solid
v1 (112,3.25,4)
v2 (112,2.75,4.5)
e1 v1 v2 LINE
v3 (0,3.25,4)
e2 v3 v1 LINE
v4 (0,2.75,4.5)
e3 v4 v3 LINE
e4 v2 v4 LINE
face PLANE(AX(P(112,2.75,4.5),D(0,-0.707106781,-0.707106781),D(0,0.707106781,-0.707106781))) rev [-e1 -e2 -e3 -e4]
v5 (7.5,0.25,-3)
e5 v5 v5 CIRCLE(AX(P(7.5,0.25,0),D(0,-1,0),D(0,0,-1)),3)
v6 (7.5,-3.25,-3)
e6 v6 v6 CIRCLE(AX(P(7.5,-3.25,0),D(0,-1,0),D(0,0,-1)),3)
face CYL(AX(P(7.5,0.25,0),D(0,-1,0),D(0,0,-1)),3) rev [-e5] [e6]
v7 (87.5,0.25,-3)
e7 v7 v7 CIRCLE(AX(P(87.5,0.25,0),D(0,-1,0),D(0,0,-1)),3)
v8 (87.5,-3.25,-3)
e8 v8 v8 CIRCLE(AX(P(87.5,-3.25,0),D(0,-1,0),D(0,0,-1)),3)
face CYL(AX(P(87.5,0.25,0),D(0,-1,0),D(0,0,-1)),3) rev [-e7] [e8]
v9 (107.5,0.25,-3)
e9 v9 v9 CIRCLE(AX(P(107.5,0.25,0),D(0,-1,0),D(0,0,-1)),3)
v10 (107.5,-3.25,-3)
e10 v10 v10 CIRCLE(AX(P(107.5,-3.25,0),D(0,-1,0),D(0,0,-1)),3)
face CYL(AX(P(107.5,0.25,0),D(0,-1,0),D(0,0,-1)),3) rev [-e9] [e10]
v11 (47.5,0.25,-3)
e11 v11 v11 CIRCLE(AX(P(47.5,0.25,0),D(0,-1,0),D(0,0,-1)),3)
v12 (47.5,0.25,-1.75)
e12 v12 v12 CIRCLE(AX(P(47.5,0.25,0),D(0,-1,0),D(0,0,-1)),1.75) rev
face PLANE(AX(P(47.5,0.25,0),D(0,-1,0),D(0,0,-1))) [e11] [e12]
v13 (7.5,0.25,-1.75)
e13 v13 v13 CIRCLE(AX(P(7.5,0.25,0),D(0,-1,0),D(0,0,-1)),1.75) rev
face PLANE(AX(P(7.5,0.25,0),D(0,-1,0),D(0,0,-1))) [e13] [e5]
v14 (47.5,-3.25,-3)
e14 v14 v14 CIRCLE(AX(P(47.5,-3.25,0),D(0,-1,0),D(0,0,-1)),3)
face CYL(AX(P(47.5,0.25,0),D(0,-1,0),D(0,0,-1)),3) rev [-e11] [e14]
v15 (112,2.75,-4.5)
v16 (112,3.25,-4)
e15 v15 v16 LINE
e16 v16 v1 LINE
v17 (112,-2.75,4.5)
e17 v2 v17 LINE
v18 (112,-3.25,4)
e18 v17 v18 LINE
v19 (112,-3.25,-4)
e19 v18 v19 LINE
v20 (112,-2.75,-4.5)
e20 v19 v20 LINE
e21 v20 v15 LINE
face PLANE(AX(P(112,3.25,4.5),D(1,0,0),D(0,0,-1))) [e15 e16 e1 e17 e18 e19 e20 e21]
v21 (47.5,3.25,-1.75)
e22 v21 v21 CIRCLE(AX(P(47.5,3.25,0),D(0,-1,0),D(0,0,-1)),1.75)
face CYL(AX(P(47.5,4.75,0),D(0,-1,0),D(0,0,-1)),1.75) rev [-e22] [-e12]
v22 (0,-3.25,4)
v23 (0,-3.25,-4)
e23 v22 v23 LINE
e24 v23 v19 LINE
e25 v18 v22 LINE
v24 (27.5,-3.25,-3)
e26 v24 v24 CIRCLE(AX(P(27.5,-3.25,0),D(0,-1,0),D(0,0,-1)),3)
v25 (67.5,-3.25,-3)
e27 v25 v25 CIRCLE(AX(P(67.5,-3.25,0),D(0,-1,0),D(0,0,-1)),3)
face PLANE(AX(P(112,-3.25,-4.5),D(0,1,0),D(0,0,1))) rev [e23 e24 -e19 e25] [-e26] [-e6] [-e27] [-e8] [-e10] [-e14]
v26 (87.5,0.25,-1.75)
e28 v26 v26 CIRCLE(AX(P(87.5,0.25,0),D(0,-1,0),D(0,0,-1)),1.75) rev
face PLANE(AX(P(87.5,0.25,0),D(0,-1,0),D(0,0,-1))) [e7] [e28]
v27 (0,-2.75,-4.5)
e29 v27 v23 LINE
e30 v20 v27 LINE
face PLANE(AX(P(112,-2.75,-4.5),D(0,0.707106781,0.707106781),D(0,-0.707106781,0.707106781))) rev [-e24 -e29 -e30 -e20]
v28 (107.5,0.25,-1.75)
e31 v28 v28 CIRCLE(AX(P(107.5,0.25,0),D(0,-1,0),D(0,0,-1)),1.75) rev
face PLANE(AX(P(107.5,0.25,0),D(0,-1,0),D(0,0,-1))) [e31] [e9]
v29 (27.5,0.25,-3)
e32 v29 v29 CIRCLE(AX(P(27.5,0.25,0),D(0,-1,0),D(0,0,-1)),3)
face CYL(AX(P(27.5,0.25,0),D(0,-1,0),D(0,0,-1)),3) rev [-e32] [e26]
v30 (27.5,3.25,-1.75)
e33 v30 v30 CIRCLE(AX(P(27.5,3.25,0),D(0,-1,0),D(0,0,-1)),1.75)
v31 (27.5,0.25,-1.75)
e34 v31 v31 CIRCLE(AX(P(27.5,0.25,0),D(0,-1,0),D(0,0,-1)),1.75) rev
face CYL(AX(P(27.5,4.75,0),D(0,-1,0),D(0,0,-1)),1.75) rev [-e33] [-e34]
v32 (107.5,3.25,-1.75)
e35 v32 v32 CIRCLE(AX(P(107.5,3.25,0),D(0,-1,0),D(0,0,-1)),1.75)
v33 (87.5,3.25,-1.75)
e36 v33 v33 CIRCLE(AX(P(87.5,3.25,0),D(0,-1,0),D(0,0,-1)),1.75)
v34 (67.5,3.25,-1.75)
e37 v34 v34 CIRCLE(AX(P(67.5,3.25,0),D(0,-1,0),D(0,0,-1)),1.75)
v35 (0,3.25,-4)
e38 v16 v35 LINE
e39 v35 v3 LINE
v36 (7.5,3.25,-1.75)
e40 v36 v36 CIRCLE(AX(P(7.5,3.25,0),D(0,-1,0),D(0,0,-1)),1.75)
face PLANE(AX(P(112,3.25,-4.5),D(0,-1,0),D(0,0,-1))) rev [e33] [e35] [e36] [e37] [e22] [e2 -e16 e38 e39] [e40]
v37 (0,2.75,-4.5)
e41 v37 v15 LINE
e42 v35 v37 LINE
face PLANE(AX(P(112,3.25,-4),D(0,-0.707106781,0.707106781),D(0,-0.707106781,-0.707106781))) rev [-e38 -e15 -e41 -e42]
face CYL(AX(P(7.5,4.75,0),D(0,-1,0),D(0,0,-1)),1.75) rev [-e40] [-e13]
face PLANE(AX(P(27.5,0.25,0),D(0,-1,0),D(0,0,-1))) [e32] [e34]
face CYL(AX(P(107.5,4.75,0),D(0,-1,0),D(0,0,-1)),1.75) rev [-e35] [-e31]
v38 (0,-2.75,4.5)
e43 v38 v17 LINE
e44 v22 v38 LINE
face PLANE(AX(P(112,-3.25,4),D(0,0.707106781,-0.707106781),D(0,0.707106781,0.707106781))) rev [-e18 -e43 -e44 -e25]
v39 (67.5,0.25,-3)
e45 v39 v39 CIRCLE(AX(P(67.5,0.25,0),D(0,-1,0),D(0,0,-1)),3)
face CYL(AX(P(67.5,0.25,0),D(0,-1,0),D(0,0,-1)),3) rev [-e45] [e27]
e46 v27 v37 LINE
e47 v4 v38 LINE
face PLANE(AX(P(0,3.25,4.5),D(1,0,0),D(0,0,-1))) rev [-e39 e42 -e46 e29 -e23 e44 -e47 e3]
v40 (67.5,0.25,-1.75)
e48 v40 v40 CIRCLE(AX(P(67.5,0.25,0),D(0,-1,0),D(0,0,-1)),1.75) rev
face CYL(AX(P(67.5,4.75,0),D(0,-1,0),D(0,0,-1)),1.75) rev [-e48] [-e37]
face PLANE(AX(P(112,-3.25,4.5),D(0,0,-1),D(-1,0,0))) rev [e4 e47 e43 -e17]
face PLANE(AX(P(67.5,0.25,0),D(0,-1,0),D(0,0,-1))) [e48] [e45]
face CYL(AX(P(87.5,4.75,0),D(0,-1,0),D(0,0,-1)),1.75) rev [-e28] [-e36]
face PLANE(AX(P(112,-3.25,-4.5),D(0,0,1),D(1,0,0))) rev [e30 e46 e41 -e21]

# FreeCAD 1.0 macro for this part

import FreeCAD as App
import Part
import Sketcher


def edges_at(feature, points):
    """Names of the edges that pass closest to the given points."""
    edges = feature.Shape.Edges
    near = lambda p: min(range(len(edges)), key=lambda i: edges[i].distToShape(Part.Vertex(*p))[0])
    return sorted({f"Edge{near(p) + 1}" for p in points})

doc = App.newDocument("Part")
body = doc.addObject("PartDesign::Body", "Body")

sketch1 = body.newObject("Sketcher::SketchObject", "Sketch")
sketch1.AttachmentSupport = (doc.getObject("YZ_Plane"), [""])
sketch1.MapMode = "FlatFace"
sketch1.addGeometry(Part.LineSegment(App.Vector(3.25, 4.5, 0), App.Vector(-3.25, 4.5, 0)), False)
sketch1.addGeometry(Part.LineSegment(App.Vector(-3.25, 4.5, 0), App.Vector(-3.25, -4.5, 0)), False)
sketch1.addGeometry(Part.LineSegment(App.Vector(-3.25, -4.5, 0), App.Vector(3.25, -4.5, 0)), False)
sketch1.addGeometry(Part.LineSegment(App.Vector(3.25, -4.5, 0), App.Vector(3.25, 4.5, 0)), False)
sketch1.addConstraint(Sketcher.Constraint("Coincident", 0, 2, 1, 1))
sketch1.addConstraint(Sketcher.Constraint("Coincident", 1, 2, 2, 1))
sketch1.addConstraint(Sketcher.Constraint("Coincident", 2, 2, 3, 1))
sketch1.addConstraint(Sketcher.Constraint("Coincident", 3, 2, 0, 1))
sketch1.addConstraint(Sketcher.Constraint("Horizontal", 0))
sketch1.addConstraint(Sketcher.Constraint("Vertical", 1))
sketch1.addConstraint(Sketcher.Constraint("Horizontal", 2))
sketch1.addConstraint(Sketcher.Constraint("Vertical", 3))
sketch1.addConstraint(Sketcher.Constraint("Symmetric", 0, 2, 2, 2, -1, 1))
sketch1.addConstraint(Sketcher.Constraint("DistanceY", 1, 2, 1, 1, 9.0))
sketch1.addConstraint(Sketcher.Constraint("DistanceX", 0, 2, 0, 1, 6.5))
pad1 = body.newObject("PartDesign::Pad", "Pad")
pad1.Profile = sketch1
pad1.Length = 112

sketch2 = body.newObject("Sketcher::SketchObject", "Sketch001")
sketch2.AttachmentSupport = (doc.getObject("XZ_Plane"), [""])
sketch2.MapMode = "FlatFace"
sketch2.AttachmentOffset = App.Placement(App.Vector(0, 0, 3.25), App.Rotation())
sketch2.addGeometry(Part.Circle(App.Vector(7.5, 0, 0), App.Vector(0, 0, 1), 1.75), False)
sketch2.addGeometry(Part.Circle(App.Vector(167.5, 0, 0), App.Vector(0, 0, 1), 1.75), False)
sketch2.addGeometry(Part.Circle(App.Vector(187.5, 0, 0), App.Vector(0, 0, 1), 1.75), False)
sketch2.addGeometry(Part.Circle(App.Vector(207.5, 0, 0), App.Vector(0, 0, 1), 1.75), False)
sketch2.addGeometry(Part.Circle(App.Vector(227.5, 0, 0), App.Vector(0, 0, 1), 1.75), False)
sketch2.addGeometry(Part.Circle(App.Vector(247.5, 0, 0), App.Vector(0, 0, 1), 1.75), False)
sketch2.addGeometry(Part.Circle(App.Vector(267.5, 0, 0), App.Vector(0, 0, 1), 1.75), False)
sketch2.addGeometry(Part.Circle(App.Vector(287.5, 0, 0), App.Vector(0, 0, 1), 1.75), False)
sketch2.addGeometry(Part.Circle(App.Vector(27.5, 0, 0), App.Vector(0, 0, 1), 1.75), False)
sketch2.addGeometry(Part.Circle(App.Vector(47.5, 0, 0), App.Vector(0, 0, 1), 1.75), False)
sketch2.addGeometry(Part.Circle(App.Vector(67.5, 0, 0), App.Vector(0, 0, 1), 1.75), False)
sketch2.addGeometry(Part.Circle(App.Vector(87.5, 0, 0), App.Vector(0, 0, 1), 1.75), False)
sketch2.addGeometry(Part.Circle(App.Vector(107.5, 0, 0), App.Vector(0, 0, 1), 1.75), False)
sketch2.addGeometry(Part.Circle(App.Vector(127.5, 0, 0), App.Vector(0, 0, 1), 1.75), False)
sketch2.addGeometry(Part.Circle(App.Vector(147.5, 0, 0), App.Vector(0, 0, 1), 1.75), False)
sketch2.addConstraint(Sketcher.Constraint("Equal", 0, 1))
sketch2.addConstraint(Sketcher.Constraint("Equal", 1, 2))
sketch2.addConstraint(Sketcher.Constraint("Equal", 2, 3))
sketch2.addConstraint(Sketcher.Constraint("Equal", 3, 4))
sketch2.addConstraint(Sketcher.Constraint("Equal", 4, 5))
sketch2.addConstraint(Sketcher.Constraint("Equal", 5, 6))
sketch2.addConstraint(Sketcher.Constraint("Equal", 6, 7))
sketch2.addConstraint(Sketcher.Constraint("Equal", 7, 8))
sketch2.addConstraint(Sketcher.Constraint("Equal", 8, 9))
sketch2.addConstraint(Sketcher.Constraint("Equal", 9, 10))
sketch2.addConstraint(Sketcher.Constraint("Equal", 10, 11))
sketch2.addConstraint(Sketcher.Constraint("Equal", 11, 12))
sketch2.addConstraint(Sketcher.Constraint("Equal", 12, 13))
sketch2.addConstraint(Sketcher.Constraint("Equal", 13, 14))
sketch2.addConstraint(Sketcher.Constraint("PointOnObject", 0, 3, -1))
sketch2.addConstraint(Sketcher.Constraint("PointOnObject", 1, 3, -1))
sketch2.addConstraint(Sketcher.Constraint("PointOnObject", 2, 3, -1))
sketch2.addConstraint(Sketcher.Constraint("PointOnObject", 3, 3, -1))
sketch2.addConstraint(Sketcher.Constraint("PointOnObject", 4, 3, -1))
sketch2.addConstraint(Sketcher.Constraint("PointOnObject", 5, 3, -1))
sketch2.addConstraint(Sketcher.Constraint("PointOnObject", 6, 3, -1))
sketch2.addConstraint(Sketcher.Constraint("PointOnObject", 7, 3, -1))
sketch2.addConstraint(Sketcher.Constraint("PointOnObject", 8, 3, -1))
sketch2.addConstraint(Sketcher.Constraint("PointOnObject", 9, 3, -1))
sketch2.addConstraint(Sketcher.Constraint("PointOnObject", 10, 3, -1))
sketch2.addConstraint(Sketcher.Constraint("PointOnObject", 11, 3, -1))
sketch2.addConstraint(Sketcher.Constraint("PointOnObject", 12, 3, -1))
sketch2.addConstraint(Sketcher.Constraint("PointOnObject", 13, 3, -1))
sketch2.addConstraint(Sketcher.Constraint("PointOnObject", 14, 3, -1))
sketch2.addConstraint(Sketcher.Constraint("Diameter", 0, 3.5))
sketch2.addConstraint(Sketcher.Constraint("DistanceX", 0, 3, 1, 3, 160.0))
sketch2.addConstraint(Sketcher.Constraint("DistanceX", 1, 3, 2, 3, 20.0))
sketch2.addConstraint(Sketcher.Constraint("DistanceX", 2, 3, 3, 3, 20.0))
sketch2.addConstraint(Sketcher.Constraint("DistanceX", 3, 3, 4, 3, 20.0))
sketch2.addConstraint(Sketcher.Constraint("DistanceX", 4, 3, 5, 3, 20.0))
sketch2.addConstraint(Sketcher.Constraint("DistanceX", 5, 3, 6, 3, 20.0))
sketch2.addConstraint(Sketcher.Constraint("DistanceX", 6, 3, 7, 3, 20.0))
sketch2.addConstraint(Sketcher.Constraint("DistanceX", 0, 3, 8, 3, 20.0))
sketch2.addConstraint(Sketcher.Constraint("DistanceX", 8, 3, 9, 3, 20.0))
sketch2.addConstraint(Sketcher.Constraint("DistanceX", 9, 3, 10, 3, 20.0))
sketch2.addConstraint(Sketcher.Constraint("DistanceX", 10, 3, 11, 3, 20.0))
sketch2.addConstraint(Sketcher.Constraint("DistanceX", 11, 3, 12, 3, 20.0))
sketch2.addConstraint(Sketcher.Constraint("DistanceX", 12, 3, 13, 3, 20.0))
sketch2.addConstraint(Sketcher.Constraint("DistanceX", 14, 3, 1, 3, 20.0))
sketch2.addConstraint(Sketcher.Constraint("DistanceX", -1, 1, 0, 3, 7.5))
pocket1 = body.newObject("PartDesign::Pocket", "Pocket")
pocket1.Profile = sketch2
pocket1.Length = 8

sketch3 = body.newObject("Sketcher::SketchObject", "Sketch002")
sketch3.AttachmentSupport = (doc.getObject("XZ_Plane"), [""])
sketch3.MapMode = "FlatFace"
sketch3.AttachmentOffset = App.Placement(App.Vector(0, 0, 3.25), App.Rotation())
sketch3.addGeometry(Part.Circle(App.Vector(7.5, 0, 0), App.Vector(0, 0, 1), 3), False)
sketch3.addGeometry(Part.Circle(App.Vector(167.5, 0, 0), App.Vector(0, 0, 1), 3), False)
sketch3.addGeometry(Part.Circle(App.Vector(187.5, 0, 0), App.Vector(0, 0, 1), 3), False)
sketch3.addGeometry(Part.Circle(App.Vector(207.5, 0, 0), App.Vector(0, 0, 1), 3), False)
sketch3.addGeometry(Part.Circle(App.Vector(227.5, 0, 0), App.Vector(0, 0, 1), 3), False)
sketch3.addGeometry(Part.Circle(App.Vector(247.5, 0, 0), App.Vector(0, 0, 1), 3), False)
sketch3.addGeometry(Part.Circle(App.Vector(267.5, 0, 0), App.Vector(0, 0, 1), 3), False)
sketch3.addGeometry(Part.Circle(App.Vector(287.5, 0, 0), App.Vector(0, 0, 1), 3), False)
sketch3.addGeometry(Part.Circle(App.Vector(27.5, 0, 0), App.Vector(0, 0, 1), 3), False)
sketch3.addGeometry(Part.Circle(App.Vector(47.5, 0, 0), App.Vector(0, 0, 1), 3), False)
sketch3.addGeometry(Part.Circle(App.Vector(67.5, 0, 0), App.Vector(0, 0, 1), 3), False)
sketch3.addGeometry(Part.Circle(App.Vector(87.5, 0, 0), App.Vector(0, 0, 1), 3), False)
sketch3.addGeometry(Part.Circle(App.Vector(107.5, 0, 0), App.Vector(0, 0, 1), 3), False)
sketch3.addGeometry(Part.Circle(App.Vector(127.5, 0, 0), App.Vector(0, 0, 1), 3), False)
sketch3.addGeometry(Part.Circle(App.Vector(147.5, 0, 0), App.Vector(0, 0, 1), 3), False)
sketch3.addConstraint(Sketcher.Constraint("Equal", 0, 1))
sketch3.addConstraint(Sketcher.Constraint("Equal", 1, 2))
sketch3.addConstraint(Sketcher.Constraint("Equal", 2, 3))
sketch3.addConstraint(Sketcher.Constraint("Equal", 3, 4))
sketch3.addConstraint(Sketcher.Constraint("Equal", 4, 5))
sketch3.addConstraint(Sketcher.Constraint("Equal", 5, 6))
sketch3.addConstraint(Sketcher.Constraint("Equal", 6, 7))
sketch3.addConstraint(Sketcher.Constraint("Equal", 7, 8))
sketch3.addConstraint(Sketcher.Constraint("Equal", 8, 9))
sketch3.addConstraint(Sketcher.Constraint("Equal", 9, 10))
sketch3.addConstraint(Sketcher.Constraint("Equal", 10, 11))
sketch3.addConstraint(Sketcher.Constraint("Equal", 11, 12))
sketch3.addConstraint(Sketcher.Constraint("Equal", 12, 13))
sketch3.addConstraint(Sketcher.Constraint("Equal", 13, 14))
sketch3.addConstraint(Sketcher.Constraint("PointOnObject", 0, 3, -1))
sketch3.addConstraint(Sketcher.Constraint("PointOnObject", 1, 3, -1))
sketch3.addConstraint(Sketcher.Constraint("PointOnObject", 2, 3, -1))
sketch3.addConstraint(Sketcher.Constraint("PointOnObject", 3, 3, -1))
sketch3.addConstraint(Sketcher.Constraint("PointOnObject", 4, 3, -1))
sketch3.addConstraint(Sketcher.Constraint("PointOnObject", 5, 3, -1))
sketch3.addConstraint(Sketcher.Constraint("PointOnObject", 6, 3, -1))
sketch3.addConstraint(Sketcher.Constraint("PointOnObject", 7, 3, -1))
sketch3.addConstraint(Sketcher.Constraint("PointOnObject", 8, 3, -1))
sketch3.addConstraint(Sketcher.Constraint("PointOnObject", 9, 3, -1))
sketch3.addConstraint(Sketcher.Constraint("PointOnObject", 10, 3, -1))
sketch3.addConstraint(Sketcher.Constraint("PointOnObject", 11, 3, -1))
sketch3.addConstraint(Sketcher.Constraint("PointOnObject", 12, 3, -1))
sketch3.addConstraint(Sketcher.Constraint("PointOnObject", 13, 3, -1))
sketch3.addConstraint(Sketcher.Constraint("PointOnObject", 14, 3, -1))
sketch3.addConstraint(Sketcher.Constraint("Diameter", 0, 6.0))
sketch3.addConstraint(Sketcher.Constraint("DistanceX", 0, 3, 1, 3, 160.0))
sketch3.addConstraint(Sketcher.Constraint("DistanceX", 1, 3, 2, 3, 20.0))
sketch3.addConstraint(Sketcher.Constraint("DistanceX", 2, 3, 3, 3, 20.0))
sketch3.addConstraint(Sketcher.Constraint("DistanceX", 3, 3, 4, 3, 20.0))
sketch3.addConstraint(Sketcher.Constraint("DistanceX", 4, 3, 5, 3, 20.0))
sketch3.addConstraint(Sketcher.Constraint("DistanceX", 5, 3, 6, 3, 20.0))
sketch3.addConstraint(Sketcher.Constraint("DistanceX", 6, 3, 7, 3, 20.0))
sketch3.addConstraint(Sketcher.Constraint("DistanceX", 0, 3, 8, 3, 20.0))
sketch3.addConstraint(Sketcher.Constraint("DistanceX", 8, 3, 9, 3, 20.0))
sketch3.addConstraint(Sketcher.Constraint("DistanceX", 9, 3, 10, 3, 20.0))
sketch3.addConstraint(Sketcher.Constraint("DistanceX", 10, 3, 11, 3, 20.0))
sketch3.addConstraint(Sketcher.Constraint("DistanceX", 11, 3, 12, 3, 20.0))
sketch3.addConstraint(Sketcher.Constraint("DistanceX", 12, 3, 13, 3, 20.0))
sketch3.addConstraint(Sketcher.Constraint("DistanceX", 14, 3, 1, 3, 20.0))
sketch3.addConstraint(Sketcher.Constraint("DistanceX", -1, 1, 0, 3, 7.5))
pocket2 = body.newObject("PartDesign::Pocket", "Pocket001")
pocket2.Profile = sketch3
pocket2.Length = 3.5
doc.recompute()

chamfer = body.newObject("PartDesign::Chamfer", "Chamfer")
chamfer.Base = (pocket2, edges_at(pocket2, [
    (56, 3.25, 4.5),
    (56, 3.25, -4.5),
    (56, -3.25, -4.5),
    (56, -3.25, 4.5),
]))
chamfer.Size = 0.5

doc.recompute()
